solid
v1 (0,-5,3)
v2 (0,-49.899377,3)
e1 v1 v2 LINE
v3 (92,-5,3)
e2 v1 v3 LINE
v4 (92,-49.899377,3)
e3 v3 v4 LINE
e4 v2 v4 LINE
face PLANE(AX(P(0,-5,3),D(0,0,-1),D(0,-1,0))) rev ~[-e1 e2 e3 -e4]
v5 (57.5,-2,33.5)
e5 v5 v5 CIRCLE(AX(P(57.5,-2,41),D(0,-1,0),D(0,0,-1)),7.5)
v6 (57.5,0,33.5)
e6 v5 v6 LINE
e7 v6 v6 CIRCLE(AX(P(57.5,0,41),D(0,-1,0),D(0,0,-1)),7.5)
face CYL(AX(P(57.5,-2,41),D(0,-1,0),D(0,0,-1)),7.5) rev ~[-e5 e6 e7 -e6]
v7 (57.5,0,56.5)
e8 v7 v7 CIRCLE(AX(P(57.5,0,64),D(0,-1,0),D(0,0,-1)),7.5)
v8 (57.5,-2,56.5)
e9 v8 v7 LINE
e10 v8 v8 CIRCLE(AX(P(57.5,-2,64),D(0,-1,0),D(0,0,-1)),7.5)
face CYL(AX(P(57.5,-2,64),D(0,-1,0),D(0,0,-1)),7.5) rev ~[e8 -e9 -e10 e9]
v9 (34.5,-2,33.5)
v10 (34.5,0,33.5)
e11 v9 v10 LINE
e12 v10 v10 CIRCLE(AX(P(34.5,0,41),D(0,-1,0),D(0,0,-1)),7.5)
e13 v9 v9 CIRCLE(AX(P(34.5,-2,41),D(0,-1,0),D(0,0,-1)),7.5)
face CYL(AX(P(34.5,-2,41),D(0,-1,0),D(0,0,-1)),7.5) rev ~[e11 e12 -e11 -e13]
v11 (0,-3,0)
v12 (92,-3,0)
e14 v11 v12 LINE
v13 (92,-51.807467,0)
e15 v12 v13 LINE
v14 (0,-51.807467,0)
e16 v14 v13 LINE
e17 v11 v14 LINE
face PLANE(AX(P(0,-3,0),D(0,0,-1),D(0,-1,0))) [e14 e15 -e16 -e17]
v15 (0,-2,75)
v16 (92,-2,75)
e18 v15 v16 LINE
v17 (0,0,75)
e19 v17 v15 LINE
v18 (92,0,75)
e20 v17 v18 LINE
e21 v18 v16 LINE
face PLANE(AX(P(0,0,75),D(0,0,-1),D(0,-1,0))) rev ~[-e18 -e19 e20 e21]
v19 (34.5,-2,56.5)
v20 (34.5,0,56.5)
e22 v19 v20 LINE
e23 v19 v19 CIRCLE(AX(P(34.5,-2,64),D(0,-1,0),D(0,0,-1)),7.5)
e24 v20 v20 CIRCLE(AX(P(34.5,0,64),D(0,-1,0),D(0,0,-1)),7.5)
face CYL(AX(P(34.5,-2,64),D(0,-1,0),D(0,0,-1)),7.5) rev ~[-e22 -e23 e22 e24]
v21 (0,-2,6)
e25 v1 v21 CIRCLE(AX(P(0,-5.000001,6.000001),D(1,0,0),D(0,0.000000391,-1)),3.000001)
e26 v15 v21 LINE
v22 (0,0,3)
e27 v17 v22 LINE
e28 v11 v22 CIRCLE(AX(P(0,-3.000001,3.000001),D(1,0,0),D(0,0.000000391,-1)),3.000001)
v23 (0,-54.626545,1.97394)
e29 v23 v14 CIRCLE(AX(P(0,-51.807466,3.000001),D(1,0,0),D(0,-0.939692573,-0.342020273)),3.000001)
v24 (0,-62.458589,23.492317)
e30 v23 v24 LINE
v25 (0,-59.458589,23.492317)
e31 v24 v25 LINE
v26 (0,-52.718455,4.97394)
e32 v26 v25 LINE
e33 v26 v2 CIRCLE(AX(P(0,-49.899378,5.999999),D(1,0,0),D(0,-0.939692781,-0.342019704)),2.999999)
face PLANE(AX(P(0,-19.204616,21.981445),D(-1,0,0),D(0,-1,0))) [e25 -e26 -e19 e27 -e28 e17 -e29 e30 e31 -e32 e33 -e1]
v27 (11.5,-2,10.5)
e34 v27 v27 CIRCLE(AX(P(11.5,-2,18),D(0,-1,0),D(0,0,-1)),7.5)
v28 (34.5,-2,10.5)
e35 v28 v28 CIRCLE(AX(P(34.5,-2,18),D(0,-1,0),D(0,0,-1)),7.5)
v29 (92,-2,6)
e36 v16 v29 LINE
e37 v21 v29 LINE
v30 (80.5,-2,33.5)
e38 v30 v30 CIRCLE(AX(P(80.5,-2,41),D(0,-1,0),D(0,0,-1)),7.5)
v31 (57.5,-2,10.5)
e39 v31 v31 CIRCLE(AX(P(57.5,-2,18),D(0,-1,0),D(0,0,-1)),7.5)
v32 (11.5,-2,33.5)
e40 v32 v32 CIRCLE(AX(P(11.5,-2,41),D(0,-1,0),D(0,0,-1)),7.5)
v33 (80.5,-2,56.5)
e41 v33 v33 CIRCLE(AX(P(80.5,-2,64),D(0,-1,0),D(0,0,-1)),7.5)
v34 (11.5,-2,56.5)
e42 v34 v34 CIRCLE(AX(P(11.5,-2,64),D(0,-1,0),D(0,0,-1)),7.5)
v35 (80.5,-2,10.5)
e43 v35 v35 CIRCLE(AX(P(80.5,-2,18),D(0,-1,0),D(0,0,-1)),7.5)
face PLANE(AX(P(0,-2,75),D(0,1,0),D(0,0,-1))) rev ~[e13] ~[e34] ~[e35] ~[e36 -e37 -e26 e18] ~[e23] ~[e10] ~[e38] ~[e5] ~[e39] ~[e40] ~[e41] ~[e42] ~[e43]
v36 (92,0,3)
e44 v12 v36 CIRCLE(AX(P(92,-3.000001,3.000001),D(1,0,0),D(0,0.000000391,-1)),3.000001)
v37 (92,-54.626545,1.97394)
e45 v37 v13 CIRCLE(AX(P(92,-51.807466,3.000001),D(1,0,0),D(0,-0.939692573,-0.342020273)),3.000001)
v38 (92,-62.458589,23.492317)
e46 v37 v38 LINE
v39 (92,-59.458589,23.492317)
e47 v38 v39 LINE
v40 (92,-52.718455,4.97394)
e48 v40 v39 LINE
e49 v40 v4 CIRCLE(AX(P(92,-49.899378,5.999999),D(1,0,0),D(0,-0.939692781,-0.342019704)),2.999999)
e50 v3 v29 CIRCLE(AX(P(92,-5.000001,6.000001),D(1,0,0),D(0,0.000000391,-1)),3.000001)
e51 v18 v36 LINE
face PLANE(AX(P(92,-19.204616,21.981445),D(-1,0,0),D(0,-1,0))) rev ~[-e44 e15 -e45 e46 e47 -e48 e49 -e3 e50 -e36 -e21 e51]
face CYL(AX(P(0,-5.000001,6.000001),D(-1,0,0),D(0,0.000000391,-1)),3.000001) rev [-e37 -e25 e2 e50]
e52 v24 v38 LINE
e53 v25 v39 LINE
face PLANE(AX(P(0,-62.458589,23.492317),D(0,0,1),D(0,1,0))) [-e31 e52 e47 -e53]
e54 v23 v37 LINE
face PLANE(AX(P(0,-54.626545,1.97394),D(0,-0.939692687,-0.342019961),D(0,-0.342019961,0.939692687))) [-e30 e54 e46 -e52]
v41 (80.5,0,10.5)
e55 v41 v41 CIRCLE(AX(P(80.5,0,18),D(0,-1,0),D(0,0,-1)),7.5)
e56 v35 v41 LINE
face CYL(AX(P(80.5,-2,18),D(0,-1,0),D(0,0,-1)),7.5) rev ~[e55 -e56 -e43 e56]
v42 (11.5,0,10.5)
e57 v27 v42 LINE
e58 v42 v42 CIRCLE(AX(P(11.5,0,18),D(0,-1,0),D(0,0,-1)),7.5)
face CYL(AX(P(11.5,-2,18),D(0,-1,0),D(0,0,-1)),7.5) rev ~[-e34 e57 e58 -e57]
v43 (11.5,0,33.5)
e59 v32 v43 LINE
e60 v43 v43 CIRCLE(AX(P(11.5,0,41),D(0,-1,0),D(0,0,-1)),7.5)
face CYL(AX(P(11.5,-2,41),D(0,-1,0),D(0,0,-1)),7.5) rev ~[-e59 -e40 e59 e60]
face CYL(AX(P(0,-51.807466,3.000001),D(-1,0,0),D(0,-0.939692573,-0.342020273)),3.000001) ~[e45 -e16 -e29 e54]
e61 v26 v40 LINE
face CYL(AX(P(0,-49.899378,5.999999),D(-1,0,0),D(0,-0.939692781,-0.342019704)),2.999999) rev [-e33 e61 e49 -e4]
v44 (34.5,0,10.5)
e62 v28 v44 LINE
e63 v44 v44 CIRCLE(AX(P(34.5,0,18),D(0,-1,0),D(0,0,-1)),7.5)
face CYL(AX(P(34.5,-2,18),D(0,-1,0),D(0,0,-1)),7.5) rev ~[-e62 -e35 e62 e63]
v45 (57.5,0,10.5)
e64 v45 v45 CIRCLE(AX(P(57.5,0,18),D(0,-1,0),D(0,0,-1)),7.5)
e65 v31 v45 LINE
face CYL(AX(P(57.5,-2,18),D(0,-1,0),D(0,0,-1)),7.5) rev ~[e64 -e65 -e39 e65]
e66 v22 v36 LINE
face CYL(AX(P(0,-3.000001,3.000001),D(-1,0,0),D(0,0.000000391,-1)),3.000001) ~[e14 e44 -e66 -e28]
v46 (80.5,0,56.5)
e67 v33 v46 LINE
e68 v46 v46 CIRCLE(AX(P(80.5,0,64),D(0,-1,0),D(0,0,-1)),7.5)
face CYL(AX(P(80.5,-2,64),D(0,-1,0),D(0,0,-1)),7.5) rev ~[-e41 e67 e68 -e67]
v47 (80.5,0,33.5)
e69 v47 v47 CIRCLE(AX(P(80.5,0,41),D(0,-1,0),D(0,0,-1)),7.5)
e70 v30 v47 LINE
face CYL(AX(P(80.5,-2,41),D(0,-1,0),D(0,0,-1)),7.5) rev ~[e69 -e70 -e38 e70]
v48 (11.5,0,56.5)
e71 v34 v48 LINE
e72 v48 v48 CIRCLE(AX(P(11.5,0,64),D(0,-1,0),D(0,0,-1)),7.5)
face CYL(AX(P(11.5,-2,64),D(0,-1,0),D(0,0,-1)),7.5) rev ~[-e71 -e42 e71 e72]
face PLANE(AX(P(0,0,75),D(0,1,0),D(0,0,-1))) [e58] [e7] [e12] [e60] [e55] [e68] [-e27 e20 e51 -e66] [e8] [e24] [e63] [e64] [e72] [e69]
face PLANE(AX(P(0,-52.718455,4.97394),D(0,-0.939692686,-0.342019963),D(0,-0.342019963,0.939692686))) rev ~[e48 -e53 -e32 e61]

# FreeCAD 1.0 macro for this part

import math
import FreeCAD as App
import Part
import Sketcher
Q = App.Units.Quantity

doc = App.newDocument("Part")
params = doc.addObject("Spreadsheet::Sheet", "Params")
for row, (alias, value) in enumerate([
    ("sketch1_radius", "3.000001 mm"),
    ("sketch1_width", "2 mm"),
    ("sketch1_width2", "3 mm"),
    ("sketch1_height", "72 mm"),
    ("pad1_length", "92 mm"),
    ("sketch2_diameter", "15 mm"),
    ("pocket1_length", "2 mm"),
], start=1):
    params.set(f"A{row}", alias)
    params.set(f"B{row}", "=" + value)
    params.setAlias(f"B{row}", alias)

body = doc.addObject("PartDesign::Body", "Body")

# Sketch on YZ plane
sketch1 = body.newObject("Sketcher::SketchObject", "Sketch")
sketch1.AttachmentSupport = (doc.getObject("YZ_Plane"), [""])
sketch1.MapMode = "FlatFace"
sketch1.addGeometry([
    Part.LineSegment(App.Vector(0, 3, 0), App.Vector(0, 75, 0)),  # 0
    Part.LineSegment(App.Vector(0, 75, 0), App.Vector(-2, 75, 0)),  # 1
    Part.LineSegment(App.Vector(-2, 75, 0), App.Vector(-2, 6, 0)),  # 2
    Part.ArcOfCircle(Part.Circle(App.Vector(-5.000001, 6.000001, 0), App.Vector(0, 0, 1), 3.000001), math.radians(-89.999978), math.radians(-0.000022)),  # 3
    Part.LineSegment(App.Vector(-5, 3, 0), App.Vector(-49.899377, 3, 0)),  # 4
    Part.ArcOfCircle(Part.Circle(App.Vector(-49.899378, 5.999999, 0), App.Vector(0, 0, 1), 2.999999), math.radians(-160.000027), math.radians(-89.999982)),  # 5
    Part.LineSegment(App.Vector(-52.718455, 4.97394, 0), App.Vector(-59.458589, 23.492317, 0)),  # 6
    Part.LineSegment(App.Vector(-59.458589, 23.492317, 0), App.Vector(-62.458589, 23.492317, 0)),  # 7
    Part.LineSegment(App.Vector(-62.458589, 23.492317, 0), App.Vector(-54.626545, 1.97394, 0)),  # 8
    Part.ArcOfCircle(Part.Circle(App.Vector(-51.807466, 3.000001, 0), App.Vector(0, 0, 1), 3.000001), math.radians(-159.999992), math.radians(-90.000017)),  # 9
    Part.LineSegment(App.Vector(-51.807467, 0, 0), App.Vector(-3, 0, 0)),  # 10
    Part.ArcOfCircle(Part.Circle(App.Vector(-3.000001, 3.000001, 0), App.Vector(0, 0, 1), 3.000001), math.radians(-89.999978), math.radians(-0.000022)),  # 11
], False)
sketch1.addConstraint([
    Sketcher.Constraint("Coincident", 0, 2, 1, 1),
    Sketcher.Constraint("Coincident", 1, 2, 2, 1),
    Sketcher.Constraint("Tangent", 2, 2, 3, 2),
    Sketcher.Constraint("Tangent", 3, 1, 4, 1),
    Sketcher.Constraint("Tangent", 4, 2, 5, 2),
    Sketcher.Constraint("Tangent", 5, 1, 6, 1),
    Sketcher.Constraint("Coincident", 6, 2, 7, 1),
    Sketcher.Constraint("Coincident", 7, 2, 8, 1),
    Sketcher.Constraint("Tangent", 8, 2, 9, 1),
    Sketcher.Constraint("Tangent", 9, 2, 10, 1),
    Sketcher.Constraint("Tangent", 10, 2, 11, 1),
    Sketcher.Constraint("Tangent", 11, 2, 0, 1),
    Sketcher.Constraint("Vertical", 0),
    Sketcher.Constraint("Horizontal", 1),
    Sketcher.Constraint("Vertical", 2),
    Sketcher.Constraint("Horizontal", 4),
    Sketcher.Constraint("Horizontal", 7),
    Sketcher.Constraint("Horizontal", 10),
    Sketcher.Constraint("Equal", 3, 9),
    Sketcher.Constraint("Equal", 9, 11),
    Sketcher.Constraint("PointOnObject", 0, 2, -2),
    Sketcher.Constraint("PointOnObject", 9, 2, -1),
    Sketcher.Constraint("Parallel", 6, 8),
    Sketcher.Constraint("Horizontal", 5, 3, 2, 2),
    Sketcher.Constraint("Horizontal", 11, 3, 3, 1),
    Sketcher.Constraint("Radius", 3, Q("3.000001 mm")),
    Sketcher.Constraint("DistanceX", 1, 2, 1, 1, Q("2 mm")),
    Sketcher.Constraint("DistanceX", 7, 2, 7, 1, Q("3 mm")),
    Sketcher.Constraint("DistanceY", 0, 1, 0, 2, Q("72 mm")),
    Sketcher.Constraint("Angle", 6, Q("109.999989 deg")),
    Sketcher.Constraint("DistanceX", 4, 2, 4, 1, Q("44.899377 mm")),
    Sketcher.Constraint("DistanceX", 6, 2, -1, 1, Q("59.458589 mm")),
])
sketch1.setExpression("Constraints[25]", "Params.sketch1_radius")
sketch1.setExpression("Constraints[26]", "Params.sketch1_width")
sketch1.setExpression("Constraints[27]", "Params.sketch1_width2")
sketch1.setExpression("Constraints[28]", "Params.sketch1_height")
pad1 = body.newObject("PartDesign::Pad", "Pad")
pad1.Profile = sketch1
pad1.setExpression("Length", "Params.pad1_length")

# Sketch on XZ plane
sketch2 = body.newObject("Sketcher::SketchObject", "Sketch001")
sketch2.AttachmentSupport = (doc.getObject("XZ_Plane"), [""])
sketch2.MapMode = "FlatFace"
sketch2.AttachmentOffset = App.Placement(App.Vector(0, 0, 2), App.Rotation())
sketch2.addGeometry([
    Part.Circle(App.Vector(11.5, 64, 0), App.Vector(0, 0, 1), 7.5),  # 0
    Part.Circle(App.Vector(11.5, 41, 0), App.Vector(0, 0, 1), 7.5),  # 1
    Part.Circle(App.Vector(11.5, 18, 0), App.Vector(0, 0, 1), 7.5),  # 2
    Part.Circle(App.Vector(34.5, 64, 0), App.Vector(0, 0, 1), 7.5),  # 3
    Part.Circle(App.Vector(34.5, 41, 0), App.Vector(0, 0, 1), 7.5),  # 4
    Part.Circle(App.Vector(34.5, 18, 0), App.Vector(0, 0, 1), 7.5),  # 5
    Part.Circle(App.Vector(57.5, 64, 0), App.Vector(0, 0, 1), 7.5),  # 6
    Part.Circle(App.Vector(57.5, 41, 0), App.Vector(0, 0, 1), 7.5),  # 7
    Part.Circle(App.Vector(57.5, 18, 0), App.Vector(0, 0, 1), 7.5),  # 8
    Part.Circle(App.Vector(80.5, 64, 0), App.Vector(0, 0, 1), 7.5),  # 9
    Part.Circle(App.Vector(80.5, 41, 0), App.Vector(0, 0, 1), 7.5),  # 10
    Part.Circle(App.Vector(80.5, 18, 0), App.Vector(0, 0, 1), 7.5),  # 11
], False)
sketch2.addConstraint([
    Sketcher.Constraint("Equal", 0, 1),
    Sketcher.Constraint("Equal", 1, 2),
    Sketcher.Constraint("Equal", 2, 3),
    Sketcher.Constraint("Equal", 3, 4),
    Sketcher.Constraint("Equal", 4, 5),
    Sketcher.Constraint("Equal", 5, 6),
    Sketcher.Constraint("Equal", 6, 7),
    Sketcher.Constraint("Equal", 7, 8),
    Sketcher.Constraint("Equal", 8, 9),
    Sketcher.Constraint("Equal", 9, 10),
    Sketcher.Constraint("Equal", 10, 11),
    Sketcher.Constraint("Horizontal", 0, 3, 3, 3),
    Sketcher.Constraint("Horizontal", 1, 3, 4, 3),
    Sketcher.Constraint("Horizontal", 2, 3, 5, 3),
    Sketcher.Constraint("Horizontal", 3, 3, 6, 3),
    Sketcher.Constraint("Horizontal", 4, 3, 7, 3),
    Sketcher.Constraint("Horizontal", 5, 3, 8, 3),
    Sketcher.Constraint("Horizontal", 6, 3, 9, 3),
    Sketcher.Constraint("Horizontal", 7, 3, 10, 3),
    Sketcher.Constraint("Horizontal", 8, 3, 11, 3),
    Sketcher.Constraint("Vertical", 0, 3, 1, 3),
    Sketcher.Constraint("Vertical", 1, 3, 2, 3),
    Sketcher.Constraint("Vertical", 3, 3, 4, 3),
    Sketcher.Constraint("Vertical", 4, 3, 5, 3),
    Sketcher.Constraint("Vertical", 6, 3, 7, 3),
    Sketcher.Constraint("Vertical", 7, 3, 8, 3),
    Sketcher.Constraint("Vertical", 9, 3, 10, 3),
    Sketcher.Constraint("Vertical", 10, 3, 11, 3),
    Sketcher.Constraint("Diameter", 0, Q("15 mm")),
    Sketcher.Constraint("DistanceY", -1, 1, 0, 3, Q("64 mm")),
    Sketcher.Constraint("DistanceY", -1, 1, 1, 3, Q("41 mm")),
    Sketcher.Constraint("DistanceY", -1, 1, 2, 3, Q("18 mm")),
    Sketcher.Constraint("DistanceX", 0, 3, 3, 3, Q("23 mm")),
    Sketcher.Constraint("DistanceX", 3, 3, 6, 3, Q("23 mm")),
    Sketcher.Constraint("DistanceX", 6, 3, 9, 3, Q("23 mm")),
    Sketcher.Constraint("DistanceX", -1, 1, 0, 3, Q("11.5 mm")),
])
sketch2.setExpression("Constraints[28]", "Params.sketch2_diameter")
pocket1 = body.newObject("PartDesign::Pocket", "Pocket")
pocket1.Profile = sketch2
pocket1.setExpression("Length", "Params.pocket1_length")

doc.recompute()
